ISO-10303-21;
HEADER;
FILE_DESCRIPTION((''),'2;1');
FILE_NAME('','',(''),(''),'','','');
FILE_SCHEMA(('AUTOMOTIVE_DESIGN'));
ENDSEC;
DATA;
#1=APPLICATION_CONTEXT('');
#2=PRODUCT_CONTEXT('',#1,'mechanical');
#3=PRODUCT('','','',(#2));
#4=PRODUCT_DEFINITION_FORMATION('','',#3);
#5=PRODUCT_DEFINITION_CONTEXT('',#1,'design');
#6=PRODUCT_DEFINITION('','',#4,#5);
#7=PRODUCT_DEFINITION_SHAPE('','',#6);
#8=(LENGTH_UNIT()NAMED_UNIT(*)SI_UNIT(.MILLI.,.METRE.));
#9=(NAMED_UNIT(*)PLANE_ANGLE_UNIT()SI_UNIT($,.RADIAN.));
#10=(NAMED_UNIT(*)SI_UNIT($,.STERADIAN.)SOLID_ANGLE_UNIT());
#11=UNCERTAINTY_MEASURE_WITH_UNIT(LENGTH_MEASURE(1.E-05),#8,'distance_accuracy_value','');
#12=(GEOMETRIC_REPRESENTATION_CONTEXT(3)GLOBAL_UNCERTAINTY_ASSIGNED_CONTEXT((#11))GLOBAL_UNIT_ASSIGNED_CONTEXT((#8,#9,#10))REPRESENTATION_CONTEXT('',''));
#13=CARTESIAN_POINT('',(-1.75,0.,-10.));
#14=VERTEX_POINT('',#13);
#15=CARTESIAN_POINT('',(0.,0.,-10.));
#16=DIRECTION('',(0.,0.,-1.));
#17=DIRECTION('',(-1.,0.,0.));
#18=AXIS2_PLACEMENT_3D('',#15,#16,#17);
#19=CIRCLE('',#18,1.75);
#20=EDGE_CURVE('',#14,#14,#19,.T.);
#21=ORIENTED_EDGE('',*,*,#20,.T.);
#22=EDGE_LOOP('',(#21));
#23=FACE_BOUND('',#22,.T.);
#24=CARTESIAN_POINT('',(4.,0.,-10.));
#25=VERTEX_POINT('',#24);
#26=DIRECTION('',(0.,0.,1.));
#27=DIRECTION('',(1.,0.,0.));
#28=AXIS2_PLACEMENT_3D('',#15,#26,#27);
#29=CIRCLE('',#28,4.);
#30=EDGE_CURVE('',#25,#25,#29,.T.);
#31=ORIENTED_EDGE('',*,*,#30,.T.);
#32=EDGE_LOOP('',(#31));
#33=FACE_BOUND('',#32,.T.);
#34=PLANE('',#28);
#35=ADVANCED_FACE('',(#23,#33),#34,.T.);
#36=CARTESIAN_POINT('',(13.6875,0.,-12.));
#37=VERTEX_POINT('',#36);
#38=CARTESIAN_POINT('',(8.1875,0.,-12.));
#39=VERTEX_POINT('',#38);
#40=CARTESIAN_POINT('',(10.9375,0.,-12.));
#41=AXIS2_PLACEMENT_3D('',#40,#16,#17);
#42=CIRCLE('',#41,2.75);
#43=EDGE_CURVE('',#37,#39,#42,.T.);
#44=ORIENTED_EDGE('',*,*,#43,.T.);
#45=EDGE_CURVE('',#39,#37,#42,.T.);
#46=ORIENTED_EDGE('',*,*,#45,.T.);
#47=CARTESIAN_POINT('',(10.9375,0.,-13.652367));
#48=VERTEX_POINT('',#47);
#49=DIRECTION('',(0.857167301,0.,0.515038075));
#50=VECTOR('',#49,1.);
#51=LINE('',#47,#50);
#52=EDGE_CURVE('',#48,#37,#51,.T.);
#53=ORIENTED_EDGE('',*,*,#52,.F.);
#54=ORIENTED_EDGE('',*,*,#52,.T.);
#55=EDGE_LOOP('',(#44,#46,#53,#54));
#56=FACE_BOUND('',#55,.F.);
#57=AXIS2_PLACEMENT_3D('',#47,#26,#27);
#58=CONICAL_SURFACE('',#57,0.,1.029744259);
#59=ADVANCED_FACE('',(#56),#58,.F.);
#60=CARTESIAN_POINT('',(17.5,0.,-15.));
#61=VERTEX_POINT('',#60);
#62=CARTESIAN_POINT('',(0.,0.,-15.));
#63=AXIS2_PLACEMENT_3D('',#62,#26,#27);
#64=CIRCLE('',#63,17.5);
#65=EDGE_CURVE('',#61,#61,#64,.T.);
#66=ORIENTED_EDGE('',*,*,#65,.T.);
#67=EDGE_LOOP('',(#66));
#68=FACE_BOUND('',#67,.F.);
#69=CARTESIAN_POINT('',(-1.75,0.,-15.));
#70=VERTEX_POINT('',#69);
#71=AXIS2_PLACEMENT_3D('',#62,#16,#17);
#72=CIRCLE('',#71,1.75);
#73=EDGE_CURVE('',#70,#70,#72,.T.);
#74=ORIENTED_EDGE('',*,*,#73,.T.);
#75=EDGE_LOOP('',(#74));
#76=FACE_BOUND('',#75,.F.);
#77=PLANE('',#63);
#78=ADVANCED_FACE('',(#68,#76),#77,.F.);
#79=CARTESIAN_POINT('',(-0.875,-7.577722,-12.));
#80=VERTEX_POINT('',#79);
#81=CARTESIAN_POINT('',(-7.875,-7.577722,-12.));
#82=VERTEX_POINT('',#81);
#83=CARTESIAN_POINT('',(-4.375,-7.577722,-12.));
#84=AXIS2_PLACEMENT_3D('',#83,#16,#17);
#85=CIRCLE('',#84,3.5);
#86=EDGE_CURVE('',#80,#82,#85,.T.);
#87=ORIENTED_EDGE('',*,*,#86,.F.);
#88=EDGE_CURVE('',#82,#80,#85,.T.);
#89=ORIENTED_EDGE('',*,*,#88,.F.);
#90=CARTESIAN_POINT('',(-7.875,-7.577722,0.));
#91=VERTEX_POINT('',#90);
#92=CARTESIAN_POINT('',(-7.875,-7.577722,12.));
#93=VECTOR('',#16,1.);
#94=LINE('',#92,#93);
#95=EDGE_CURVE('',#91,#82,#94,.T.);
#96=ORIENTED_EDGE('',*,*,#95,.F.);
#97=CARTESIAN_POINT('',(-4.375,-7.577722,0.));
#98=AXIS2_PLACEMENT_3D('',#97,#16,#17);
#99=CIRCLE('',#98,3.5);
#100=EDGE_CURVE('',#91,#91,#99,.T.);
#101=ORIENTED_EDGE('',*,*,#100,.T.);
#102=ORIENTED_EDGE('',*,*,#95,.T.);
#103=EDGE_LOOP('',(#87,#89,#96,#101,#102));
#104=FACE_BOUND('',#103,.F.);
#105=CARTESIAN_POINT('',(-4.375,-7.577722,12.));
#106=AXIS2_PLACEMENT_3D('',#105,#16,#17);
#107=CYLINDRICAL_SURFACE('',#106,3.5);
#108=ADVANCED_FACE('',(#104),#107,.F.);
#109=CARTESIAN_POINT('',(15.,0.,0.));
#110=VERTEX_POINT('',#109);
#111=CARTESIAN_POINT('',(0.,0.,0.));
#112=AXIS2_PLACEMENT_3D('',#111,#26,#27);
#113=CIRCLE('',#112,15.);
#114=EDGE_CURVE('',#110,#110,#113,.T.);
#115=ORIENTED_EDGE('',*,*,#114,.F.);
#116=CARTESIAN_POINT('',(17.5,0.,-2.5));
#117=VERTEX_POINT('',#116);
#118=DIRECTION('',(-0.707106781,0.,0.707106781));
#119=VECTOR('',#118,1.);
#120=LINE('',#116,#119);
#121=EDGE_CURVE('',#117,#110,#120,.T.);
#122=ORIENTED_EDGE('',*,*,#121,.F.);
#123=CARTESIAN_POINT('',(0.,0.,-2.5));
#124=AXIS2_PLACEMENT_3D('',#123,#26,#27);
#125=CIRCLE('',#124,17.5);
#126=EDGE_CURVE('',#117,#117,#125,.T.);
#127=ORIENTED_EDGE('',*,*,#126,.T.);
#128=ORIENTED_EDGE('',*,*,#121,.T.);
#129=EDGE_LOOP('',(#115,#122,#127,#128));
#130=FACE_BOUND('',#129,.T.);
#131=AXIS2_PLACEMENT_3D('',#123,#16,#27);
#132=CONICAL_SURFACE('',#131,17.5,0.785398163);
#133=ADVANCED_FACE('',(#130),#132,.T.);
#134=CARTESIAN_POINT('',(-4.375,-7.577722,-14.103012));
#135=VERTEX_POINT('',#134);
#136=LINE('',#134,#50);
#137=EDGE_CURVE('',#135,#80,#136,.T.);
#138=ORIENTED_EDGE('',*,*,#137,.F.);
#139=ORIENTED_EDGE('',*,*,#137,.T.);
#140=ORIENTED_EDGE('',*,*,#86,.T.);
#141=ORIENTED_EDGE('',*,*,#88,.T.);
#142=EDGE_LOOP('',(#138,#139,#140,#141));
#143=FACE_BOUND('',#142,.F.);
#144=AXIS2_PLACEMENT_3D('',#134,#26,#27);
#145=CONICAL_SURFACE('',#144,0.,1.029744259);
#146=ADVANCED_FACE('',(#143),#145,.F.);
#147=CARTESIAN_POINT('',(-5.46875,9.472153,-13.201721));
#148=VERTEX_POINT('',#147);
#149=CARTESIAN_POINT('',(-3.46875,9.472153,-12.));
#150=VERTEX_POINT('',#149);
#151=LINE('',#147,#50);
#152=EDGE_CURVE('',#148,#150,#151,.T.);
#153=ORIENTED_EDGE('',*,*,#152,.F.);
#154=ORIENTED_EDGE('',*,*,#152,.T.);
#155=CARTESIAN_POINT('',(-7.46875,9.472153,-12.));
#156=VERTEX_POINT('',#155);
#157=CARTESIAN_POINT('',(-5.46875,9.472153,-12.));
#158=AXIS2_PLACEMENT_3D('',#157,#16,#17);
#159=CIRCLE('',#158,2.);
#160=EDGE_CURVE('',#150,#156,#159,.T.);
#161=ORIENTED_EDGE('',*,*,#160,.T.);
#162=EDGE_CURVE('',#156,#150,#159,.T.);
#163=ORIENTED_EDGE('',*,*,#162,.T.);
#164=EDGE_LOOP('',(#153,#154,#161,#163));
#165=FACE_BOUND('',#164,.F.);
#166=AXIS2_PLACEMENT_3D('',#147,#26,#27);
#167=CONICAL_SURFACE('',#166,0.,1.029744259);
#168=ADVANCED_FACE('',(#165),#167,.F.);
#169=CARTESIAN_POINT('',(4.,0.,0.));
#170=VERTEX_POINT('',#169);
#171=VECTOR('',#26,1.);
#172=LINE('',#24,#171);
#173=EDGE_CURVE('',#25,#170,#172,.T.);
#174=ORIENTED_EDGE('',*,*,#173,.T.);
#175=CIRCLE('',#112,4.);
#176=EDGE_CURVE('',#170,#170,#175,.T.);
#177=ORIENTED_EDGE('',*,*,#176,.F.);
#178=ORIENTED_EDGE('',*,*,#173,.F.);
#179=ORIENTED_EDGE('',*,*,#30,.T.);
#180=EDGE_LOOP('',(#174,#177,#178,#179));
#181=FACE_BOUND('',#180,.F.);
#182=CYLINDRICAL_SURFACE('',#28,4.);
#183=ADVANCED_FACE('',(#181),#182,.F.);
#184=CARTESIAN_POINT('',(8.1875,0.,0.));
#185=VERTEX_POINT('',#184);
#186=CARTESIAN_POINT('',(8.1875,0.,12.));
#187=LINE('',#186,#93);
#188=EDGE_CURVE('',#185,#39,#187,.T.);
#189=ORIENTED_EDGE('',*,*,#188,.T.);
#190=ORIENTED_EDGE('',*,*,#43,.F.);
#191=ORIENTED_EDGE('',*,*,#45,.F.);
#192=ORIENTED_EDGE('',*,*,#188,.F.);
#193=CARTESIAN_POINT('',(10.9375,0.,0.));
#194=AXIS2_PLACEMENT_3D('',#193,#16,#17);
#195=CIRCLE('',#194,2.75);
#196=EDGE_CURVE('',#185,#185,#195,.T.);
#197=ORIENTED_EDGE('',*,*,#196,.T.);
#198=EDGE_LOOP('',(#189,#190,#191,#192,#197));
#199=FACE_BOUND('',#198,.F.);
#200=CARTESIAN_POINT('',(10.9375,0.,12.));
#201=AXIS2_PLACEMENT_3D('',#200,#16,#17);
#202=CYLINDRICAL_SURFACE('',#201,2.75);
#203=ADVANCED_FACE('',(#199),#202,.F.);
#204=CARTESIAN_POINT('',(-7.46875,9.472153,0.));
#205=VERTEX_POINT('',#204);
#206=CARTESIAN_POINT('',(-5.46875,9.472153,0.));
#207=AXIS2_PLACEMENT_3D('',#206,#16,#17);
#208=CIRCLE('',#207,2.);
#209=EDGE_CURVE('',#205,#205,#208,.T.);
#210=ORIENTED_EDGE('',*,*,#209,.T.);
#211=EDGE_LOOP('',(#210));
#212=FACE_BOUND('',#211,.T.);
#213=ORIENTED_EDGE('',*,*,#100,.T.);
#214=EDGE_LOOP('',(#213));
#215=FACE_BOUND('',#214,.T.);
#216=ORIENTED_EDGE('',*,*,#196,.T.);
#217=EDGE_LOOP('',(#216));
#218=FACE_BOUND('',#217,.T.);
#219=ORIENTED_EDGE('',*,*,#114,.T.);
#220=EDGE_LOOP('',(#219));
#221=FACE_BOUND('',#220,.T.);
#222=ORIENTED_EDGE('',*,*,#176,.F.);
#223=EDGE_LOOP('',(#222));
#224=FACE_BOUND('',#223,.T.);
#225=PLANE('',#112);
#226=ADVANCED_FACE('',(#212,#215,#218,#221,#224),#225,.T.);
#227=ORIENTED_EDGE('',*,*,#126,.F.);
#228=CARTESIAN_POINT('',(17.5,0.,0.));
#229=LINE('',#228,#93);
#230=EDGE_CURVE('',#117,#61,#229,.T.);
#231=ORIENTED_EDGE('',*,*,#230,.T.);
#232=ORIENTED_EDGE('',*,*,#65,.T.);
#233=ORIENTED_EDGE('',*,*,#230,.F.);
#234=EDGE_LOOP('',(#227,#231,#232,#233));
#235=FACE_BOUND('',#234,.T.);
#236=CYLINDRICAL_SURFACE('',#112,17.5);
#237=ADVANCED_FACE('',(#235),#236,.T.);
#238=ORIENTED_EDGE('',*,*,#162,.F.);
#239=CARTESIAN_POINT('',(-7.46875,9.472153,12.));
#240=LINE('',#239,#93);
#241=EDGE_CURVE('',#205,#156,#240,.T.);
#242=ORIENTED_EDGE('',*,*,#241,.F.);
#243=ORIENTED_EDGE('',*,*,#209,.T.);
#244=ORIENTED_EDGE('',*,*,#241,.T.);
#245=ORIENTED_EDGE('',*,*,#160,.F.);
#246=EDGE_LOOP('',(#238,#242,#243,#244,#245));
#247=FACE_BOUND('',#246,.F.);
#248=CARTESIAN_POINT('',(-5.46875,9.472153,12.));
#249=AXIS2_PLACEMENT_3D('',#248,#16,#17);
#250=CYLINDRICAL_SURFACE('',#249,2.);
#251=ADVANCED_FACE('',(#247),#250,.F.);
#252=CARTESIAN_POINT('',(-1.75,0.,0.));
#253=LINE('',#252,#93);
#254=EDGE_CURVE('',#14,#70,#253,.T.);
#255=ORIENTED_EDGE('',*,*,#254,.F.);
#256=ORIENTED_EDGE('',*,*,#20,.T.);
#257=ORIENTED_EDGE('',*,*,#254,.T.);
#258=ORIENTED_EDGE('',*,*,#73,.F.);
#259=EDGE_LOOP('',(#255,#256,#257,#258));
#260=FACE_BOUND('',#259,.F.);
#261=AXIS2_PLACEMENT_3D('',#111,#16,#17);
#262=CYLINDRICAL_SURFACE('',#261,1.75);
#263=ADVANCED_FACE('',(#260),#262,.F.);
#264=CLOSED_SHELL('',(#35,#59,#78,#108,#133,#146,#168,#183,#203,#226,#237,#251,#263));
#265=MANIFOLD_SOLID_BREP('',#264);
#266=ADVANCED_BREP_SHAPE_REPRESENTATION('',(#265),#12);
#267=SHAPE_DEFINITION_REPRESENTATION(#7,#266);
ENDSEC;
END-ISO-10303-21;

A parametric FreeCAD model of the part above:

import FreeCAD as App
import Part
import Sketcher

V = App.Vector
Q = App.Units.Quantity


def edges_at(feature, points):
    """Names of the edges that pass closest to the given points."""
    edges = feature.Shape.Edges
    near = lambda p: min(range(len(edges)), key=lambda i: edges[i].distToShape(Part.Vertex(*p))[0])
    return sorted({f"Edge{near(p) + 1}" for p in points})

doc = App.newDocument("Part")
body = doc.addObject("PartDesign::Body", "Body")

# Sketch on XY plane
sketch1 = body.newObject("Sketcher::SketchObject", "Sketch")
sketch1.AttachmentSupport = (doc.getObject("XY_Plane"), [""])
sketch1.MapMode = "FlatFace"
sketch1.addGeometry(Part.Circle(V(0, 0, 0), V(0, 0, 1), 18), False)
sketch1.addConstraint(Sketcher.Constraint("Coincident", 0, 3, -1, 1))
sketch1.addConstraint(Sketcher.Constraint("Diameter", 0, Q("35 mm")))
pad1 = body.newObject("PartDesign::Pad", "Pad")
pad1.Profile = sketch1
pad1.Length = 15
pad1.Reversed = True

# Sketch on XY plane
sketch2 = body.newObject("Sketcher::SketchObject", "Sketch001")
sketch2.AttachmentSupport = (doc.getObject("XY_Plane"), [""])
sketch2.MapMode = "FlatFace"
sketch2.addGeometry(Part.Circle(V(10.9, 0, 0), V(0, 0, 1), 2.8), False)
sketch2.addConstraint(Sketcher.Constraint("PointOnObject", 0, 3, -1))
sketch2.addConstraint(Sketcher.Constraint("Diameter", 0, Q("5.5 mm")))
sketch2.addConstraint(Sketcher.Constraint("DistanceX", -1, 1, 0, 3, Q("10.9375 mm")))
doc.recompute()
hole = body.newObject("PartDesign::Hole", "Hole")
hole.Profile = sketch2
hole.ThreadType = "None"
hole.Diameter = 5.5
hole.DepthType = "Dimension"
hole.Depth = 12
hole.DrillPoint = "Angled"
hole.DrillPointAngle = 118

# Sketch on XY plane
sketch3 = body.newObject("Sketcher::SketchObject", "Sketch002")
sketch3.AttachmentSupport = (doc.getObject("XY_Plane"), [""])
sketch3.MapMode = "FlatFace"
sketch3.addGeometry(Part.Circle(V(-4.4, -7.6, 0), V(0, 0, 1), 3.5), False)
sketch3.addConstraint(Sketcher.Constraint("Diameter", 0, Q("7 mm")))
sketch3.addConstraint(Sketcher.Constraint("DistanceX", 0, 3, -1, 1, Q("4.375 mm")))
sketch3.addConstraint(Sketcher.Constraint("DistanceY", 0, 3, -1, 1, Q("7.577722 mm")))
doc.recompute()
hole2 = body.newObject("PartDesign::Hole", "Hole001")
hole2.Profile = sketch3
hole2.ThreadType = "None"
hole2.Diameter = 7
hole2.DepthType = "Dimension"
hole2.Depth = 12
hole2.DrillPoint = "Angled"
hole2.DrillPointAngle = 118

# Sketch on XY plane
sketch4 = body.newObject("Sketcher::SketchObject", "Sketch003")
sketch4.AttachmentSupport = (doc.getObject("XY_Plane"), [""])
sketch4.MapMode = "FlatFace"
sketch4.addGeometry(Part.Circle(V(-5.5, 9.5, 0), V(0, 0, 1), 2), False)
sketch4.addConstraint(Sketcher.Constraint("Diameter", 0, Q("4 mm")))
sketch4.addConstraint(Sketcher.Constraint("DistanceX", 0, 3, -1, 1, Q("5.46875 mm")))
sketch4.addConstraint(Sketcher.Constraint("DistanceY", -1, 1, 0, 3, Q("9.472153 mm")))
doc.recompute()
hole3 = body.newObject("PartDesign::Hole", "Hole002")
hole3.Profile = sketch4
hole3.ThreadType = "None"
hole3.Diameter = 4
hole3.DepthType = "Dimension"
hole3.Depth = 12
hole3.DrillPoint = "Angled"
hole3.DrillPointAngle = 118

# Sketch on XY plane
sketch5 = body.newObject("Sketcher::SketchObject", "Sketch004")
sketch5.AttachmentSupport = (doc.getObject("XY_Plane"), [""])
sketch5.MapMode = "FlatFace"
sketch5.addGeometry(Part.Circle(V(0, 0, 0), V(0, 0, 1), 1.8), False)
sketch5.addConstraint(Sketcher.Constraint("Coincident", 0, 3, -1, 1))
sketch5.addConstraint(Sketcher.Constraint("Diameter", 0, Q("3.5 mm")))
doc.recompute()
hole4 = body.newObject("PartDesign::Hole", "Hole003")
hole4.Profile = sketch5
hole4.ThreadType = "None"
hole4.Diameter = 3.5
hole4.DepthType = "ThroughAll"
hole4.HoleCutType = "Counterbore"
hole4.HoleCutDiameter = 8
hole4.HoleCutDepth = 10
doc.recompute()

chamfer = body.newObject("PartDesign::Chamfer", "Chamfer")
chamfer.Base = (hole4, edges_at(hole4, [(-17.5, 0, 0)]))
chamfer.Size = 2.5

doc.recompute()
